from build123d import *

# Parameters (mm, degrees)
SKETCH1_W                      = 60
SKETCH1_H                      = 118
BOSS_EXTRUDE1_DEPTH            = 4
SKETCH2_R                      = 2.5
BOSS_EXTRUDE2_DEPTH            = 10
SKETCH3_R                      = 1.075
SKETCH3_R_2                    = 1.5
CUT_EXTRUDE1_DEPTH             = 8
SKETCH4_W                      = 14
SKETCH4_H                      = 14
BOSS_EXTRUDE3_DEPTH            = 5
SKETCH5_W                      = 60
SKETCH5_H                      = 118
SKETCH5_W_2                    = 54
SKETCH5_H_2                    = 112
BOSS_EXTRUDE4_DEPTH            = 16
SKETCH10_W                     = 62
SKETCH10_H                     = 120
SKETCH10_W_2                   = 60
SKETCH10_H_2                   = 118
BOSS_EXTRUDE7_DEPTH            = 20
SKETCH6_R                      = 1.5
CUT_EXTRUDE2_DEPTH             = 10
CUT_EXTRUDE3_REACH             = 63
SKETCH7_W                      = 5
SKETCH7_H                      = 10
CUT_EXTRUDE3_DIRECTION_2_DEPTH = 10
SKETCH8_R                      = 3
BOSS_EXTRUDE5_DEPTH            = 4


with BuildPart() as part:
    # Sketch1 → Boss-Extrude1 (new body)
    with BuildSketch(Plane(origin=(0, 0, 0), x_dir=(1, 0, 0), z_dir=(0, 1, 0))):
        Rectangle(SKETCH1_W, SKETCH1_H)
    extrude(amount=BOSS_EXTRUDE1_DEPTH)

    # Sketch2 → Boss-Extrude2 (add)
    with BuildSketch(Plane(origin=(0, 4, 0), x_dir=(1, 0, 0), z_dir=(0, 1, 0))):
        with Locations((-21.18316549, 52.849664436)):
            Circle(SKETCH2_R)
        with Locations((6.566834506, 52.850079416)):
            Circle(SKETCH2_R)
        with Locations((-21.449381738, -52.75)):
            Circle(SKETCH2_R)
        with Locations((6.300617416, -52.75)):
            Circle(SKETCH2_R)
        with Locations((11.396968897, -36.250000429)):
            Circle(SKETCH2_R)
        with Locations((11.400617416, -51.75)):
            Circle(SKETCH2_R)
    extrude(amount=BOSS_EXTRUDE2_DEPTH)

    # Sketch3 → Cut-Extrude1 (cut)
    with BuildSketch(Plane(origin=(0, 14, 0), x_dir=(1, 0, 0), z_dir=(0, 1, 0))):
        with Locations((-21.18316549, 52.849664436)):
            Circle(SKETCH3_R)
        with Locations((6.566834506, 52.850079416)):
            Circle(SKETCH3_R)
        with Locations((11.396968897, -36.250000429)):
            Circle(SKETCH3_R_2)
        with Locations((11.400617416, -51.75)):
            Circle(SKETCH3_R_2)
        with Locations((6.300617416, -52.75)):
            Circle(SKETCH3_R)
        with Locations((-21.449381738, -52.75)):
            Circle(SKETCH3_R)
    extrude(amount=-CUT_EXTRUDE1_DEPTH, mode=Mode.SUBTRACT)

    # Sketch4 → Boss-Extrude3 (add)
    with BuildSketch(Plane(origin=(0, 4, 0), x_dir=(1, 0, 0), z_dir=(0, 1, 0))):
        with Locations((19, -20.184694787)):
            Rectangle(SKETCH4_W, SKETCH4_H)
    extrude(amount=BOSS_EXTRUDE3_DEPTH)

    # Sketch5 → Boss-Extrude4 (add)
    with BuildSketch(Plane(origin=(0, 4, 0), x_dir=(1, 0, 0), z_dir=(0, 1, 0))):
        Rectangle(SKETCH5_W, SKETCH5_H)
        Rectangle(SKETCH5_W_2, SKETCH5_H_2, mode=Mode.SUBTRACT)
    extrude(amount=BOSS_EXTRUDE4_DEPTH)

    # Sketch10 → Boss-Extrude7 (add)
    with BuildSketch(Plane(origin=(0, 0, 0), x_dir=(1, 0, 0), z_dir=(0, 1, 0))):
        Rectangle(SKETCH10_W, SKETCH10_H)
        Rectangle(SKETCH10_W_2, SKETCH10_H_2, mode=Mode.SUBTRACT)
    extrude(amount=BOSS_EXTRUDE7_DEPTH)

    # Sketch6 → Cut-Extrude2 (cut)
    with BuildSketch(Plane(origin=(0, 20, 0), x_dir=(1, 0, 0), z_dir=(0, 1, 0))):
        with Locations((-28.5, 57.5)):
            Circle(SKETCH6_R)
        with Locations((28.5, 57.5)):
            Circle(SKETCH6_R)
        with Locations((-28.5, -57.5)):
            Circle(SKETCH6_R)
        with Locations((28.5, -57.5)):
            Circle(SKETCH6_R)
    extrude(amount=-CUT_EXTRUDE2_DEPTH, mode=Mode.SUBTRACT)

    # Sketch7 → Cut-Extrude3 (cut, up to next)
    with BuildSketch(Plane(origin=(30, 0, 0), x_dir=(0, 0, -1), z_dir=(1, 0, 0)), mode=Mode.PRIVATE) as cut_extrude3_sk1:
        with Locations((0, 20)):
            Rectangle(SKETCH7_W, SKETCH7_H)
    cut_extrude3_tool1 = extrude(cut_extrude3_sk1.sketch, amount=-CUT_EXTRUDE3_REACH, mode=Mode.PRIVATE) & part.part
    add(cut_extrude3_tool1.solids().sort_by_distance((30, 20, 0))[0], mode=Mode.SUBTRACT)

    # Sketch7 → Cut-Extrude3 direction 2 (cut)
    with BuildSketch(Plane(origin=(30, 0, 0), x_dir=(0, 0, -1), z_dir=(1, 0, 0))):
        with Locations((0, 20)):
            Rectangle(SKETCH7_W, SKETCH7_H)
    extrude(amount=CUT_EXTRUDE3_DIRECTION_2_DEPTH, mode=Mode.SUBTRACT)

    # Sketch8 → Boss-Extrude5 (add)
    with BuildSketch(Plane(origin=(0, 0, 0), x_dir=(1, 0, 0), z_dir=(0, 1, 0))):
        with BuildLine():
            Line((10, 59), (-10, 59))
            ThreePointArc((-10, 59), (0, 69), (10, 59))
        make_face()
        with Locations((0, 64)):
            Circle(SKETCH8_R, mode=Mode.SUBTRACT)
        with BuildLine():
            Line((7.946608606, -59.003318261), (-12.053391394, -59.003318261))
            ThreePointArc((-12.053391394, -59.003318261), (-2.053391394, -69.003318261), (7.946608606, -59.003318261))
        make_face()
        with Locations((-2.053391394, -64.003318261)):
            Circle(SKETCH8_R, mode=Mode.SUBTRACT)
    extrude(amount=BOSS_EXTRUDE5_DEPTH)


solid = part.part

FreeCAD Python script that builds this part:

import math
import FreeCAD as App
import Part
import Sketcher
from FreeCAD import Vector


def add_polygon(sketch, points):
    """Adds a closed chain of lines whose ends are joined by coincident constraints."""
    first, n = sketch.GeometryCount, len(points)
    for a, b in zip(points, points[1:] + points[:1]):
        sketch.addGeometry(Part.LineSegment(App.Vector(*a, 0), App.Vector(*b, 0)), False)
    for i in range(n):
        sketch.addConstraint(Sketcher.Constraint("Coincident", first + i, 2, first + (i + 1) % n, 1))

doc = App.newDocument("Part")
body = doc.addObject("PartDesign::Body", "Body")

# Sketch on XZ plane
sketch1 = body.newObject("Sketcher::SketchObject", "Sketch")
sketch1.AttachmentSupport = (doc.getObject("XZ_Plane"), [""])
sketch1.MapMode = "FlatFace"
add_polygon(sketch1, [(-30, -59), (-30, 59), (30, 59), (30, -59)])  # lines 0-3
sketch1.addConstraint(Sketcher.Constraint("Vertical", 0))
sketch1.addConstraint(Sketcher.Constraint("Horizontal", 1))
sketch1.addConstraint(Sketcher.Constraint("Vertical", 2))
sketch1.addConstraint(Sketcher.Constraint("Horizontal", 3))
sketch1.addConstraint(Sketcher.Constraint("Symmetric", 0, 2, 2, 2, -1, 1))
sketch1.addConstraint(Sketcher.Constraint("DistanceX", 1, 1, 1, 2, 60.0))
sketch1.addConstraint(Sketcher.Constraint("DistanceY", 0, 1, 0, 2, 118.0))
pad1 = body.newObject("PartDesign::Pad", "Pad")
pad1.Profile = sketch1
pad1.Length = 4
pad1.Reversed = True

# Sketch on XZ plane
sketch2 = body.newObject("Sketcher::SketchObject", "Sketch001")
sketch2.AttachmentSupport = (doc.getObject("XZ_Plane"), [""])
sketch2.MapMode = "FlatFace"
sketch2.AttachmentOffset = App.Placement(Vector(0, 0, -4), App.Rotation())
sketch2.addGeometry(Part.Circle(Vector(-21.183165, -52.849664, 0), Vector(0, 0, 1), 2.5), False)
sketch2.addGeometry(Part.Circle(Vector(6.566835, -52.850079, 0), Vector(0, 0, 1), 2.5), False)
sketch2.addGeometry(Part.Circle(Vector(-21.449382, 52.75, 0), Vector(0, 0, 1), 2.5), False)
sketch2.addGeometry(Part.Circle(Vector(6.300617, 52.75, 0), Vector(0, 0, 1), 2.5), False)
sketch2.addGeometry(Part.Circle(Vector(11.396969, 36.25, 0), Vector(0, 0, 1), 2.5), False)
sketch2.addGeometry(Part.Circle(Vector(11.400617, 51.75, 0), Vector(0, 0, 1), 2.5), False)
sketch2.addConstraint(Sketcher.Constraint("Equal", 0, 1))
sketch2.addConstraint(Sketcher.Constraint("Equal", 1, 2))
sketch2.addConstraint(Sketcher.Constraint("Equal", 2, 3))
sketch2.addConstraint(Sketcher.Constraint("Equal", 3, 4))
sketch2.addConstraint(Sketcher.Constraint("Equal", 4, 5))
sketch2.addConstraint(Sketcher.Constraint("Horizontal", 2, 3, 3, 3))
sketch2.addConstraint(Sketcher.Constraint("Diameter", 0, 5.0))
sketch2.addConstraint(Sketcher.Constraint("DistanceY", 5, 3, 3, 3, 1.0))
sketch2.addConstraint(Sketcher.Constraint("DistanceY", 4, 3, 3, 3, 16.5))
sketch2.addConstraint(Sketcher.Constraint("DistanceX", 3, 3, 5, 3, 5.1))
sketch2.addConstraint(Sketcher.Constraint("DistanceY", -1, 1, 2, 3, 52.75))
sketch2.addConstraint(Sketcher.Constraint("DistanceX", 0, 3, 1, 3, 27.75))
sketch2.addConstraint(Sketcher.Constraint("DistanceX", 2, 3, 3, 3, 27.749999))
sketch2.addConstraint(Sketcher.Constraint("DistanceY", 1, 3, -1, 1, 52.850079))
sketch2.addConstraint(Sketcher.Constraint("DistanceX", 2, 3, -1, 1, 21.449382))
sketch2.addConstraint(Sketcher.Constraint("DistanceX", -1, 1, 4, 3, 11.396969))
sketch2.addConstraint(Sketcher.Constraint("DistanceX", 0, 3, -1, 1, 21.183165))
sketch2.addConstraint(Sketcher.Constraint("DistanceY", 0, 3, -1, 1, 52.849664))
pad2 = body.newObject("PartDesign::Pad", "Pad001")
pad2.Profile = sketch2
pad2.Length = 10
pad2.Reversed = True

# Sketch on XZ plane
sketch3 = body.newObject("Sketcher::SketchObject", "Sketch002")
sketch3.AttachmentSupport = (doc.getObject("XZ_Plane"), [""])
sketch3.MapMode = "FlatFace"
sketch3.AttachmentOffset = App.Placement(Vector(0, 0, -14), App.Rotation())
sketch3.addGeometry(Part.Circle(Vector(-21.183165, -52.849664, 0), Vector(0, 0, 1), 1.075), False)
sketch3.addGeometry(Part.Circle(Vector(6.566835, -52.850079, 0), Vector(0, 0, 1), 1.075), False)
sketch3.addGeometry(Part.Circle(Vector(11.396969, 36.25, 0), Vector(0, 0, 1), 1.5), False)
sketch3.addGeometry(Part.Circle(Vector(11.400617, 51.75, 0), Vector(0, 0, 1), 1.5), False)
sketch3.addGeometry(Part.Circle(Vector(6.300617, 52.75, 0), Vector(0, 0, 1), 1.075), False)
sketch3.addGeometry(Part.Circle(Vector(-21.449382, 52.75, 0), Vector(0, 0, 1), 1.075), False)
sketch3.addConstraint(Sketcher.Constraint("Equal", 0, 1))
sketch3.addConstraint(Sketcher.Constraint("Equal", 2, 3))
sketch3.addConstraint(Sketcher.Constraint("Equal", 1, 4))
sketch3.addConstraint(Sketcher.Constraint("Equal", 4, 5))
sketch3.addConstraint(Sketcher.Constraint("Horizontal", 4, 3, 5, 3))
sketch3.addConstraint(Sketcher.Constraint("Diameter", 2, 3.0))
sketch3.addConstraint(Sketcher.Constraint("Diameter", 0, 2.15))
sketch3.addConstraint(Sketcher.Constraint("DistanceY", 3, 3, 4, 3, 1.0))
sketch3.addConstraint(Sketcher.Constraint("DistanceY", 2, 3, 3, 3, 15.5))
sketch3.addConstraint(Sketcher.Constraint("DistanceX", 4, 3, 3, 3, 5.1))
sketch3.addConstraint(Sketcher.Constraint("DistanceY", -1, 1, 2, 3, 36.25))
sketch3.addConstraint(Sketcher.Constraint("DistanceX", 0, 3, 1, 3, 27.75))
sketch3.addConstraint(Sketcher.Constraint("DistanceX", 5, 3, 4, 3, 27.749999))
sketch3.addConstraint(Sketcher.Constraint("DistanceY", 1, 3, -1, 1, 52.850079))
sketch3.addConstraint(Sketcher.Constraint("DistanceX", -1, 1, 2, 3, 11.396969))
sketch3.addConstraint(Sketcher.Constraint("DistanceX", 5, 3, -1, 1, 21.449382))
sketch3.addConstraint(Sketcher.Constraint("DistanceX", 0, 3, -1, 1, 21.183165))
sketch3.addConstraint(Sketcher.Constraint("DistanceY", 0, 3, -1, 1, 52.849664))
pocket1 = body.newObject("PartDesign::Pocket", "Pocket")
pocket1.Profile = sketch3
pocket1.Length = 8
pocket1.Reversed = True

# Sketch on XZ plane
sketch4 = body.newObject("Sketcher::SketchObject", "Sketch003")
sketch4.AttachmentSupport = (doc.getObject("XZ_Plane"), [""])
sketch4.MapMode = "FlatFace"
sketch4.AttachmentOffset = App.Placement(Vector(0, 0, -4), App.Rotation())
add_polygon(sketch4, [(12, 13.184695), (12, 27.184695), (26, 27.184695), (26, 13.184695)])  # lines 0-3
sketch4.addConstraint(Sketcher.Constraint("Vertical", 0))
sketch4.addConstraint(Sketcher.Constraint("Horizontal", 1))
sketch4.addConstraint(Sketcher.Constraint("Vertical", 2))
sketch4.addConstraint(Sketcher.Constraint("Horizontal", 3))
sketch4.addConstraint(Sketcher.Constraint("Equal", 3, 0))
sketch4.addConstraint(Sketcher.Constraint("DistanceX", 1, 1, 1, 2, 14.0))
sketch4.addConstraint(Sketcher.Constraint("DistanceX", -1, 1, 0, 2, 12.0))
sketch4.addConstraint(Sketcher.Constraint("DistanceY", -1, 1, 0, 2, 27.184695))
pad3 = body.newObject("PartDesign::Pad", "Pad002")
pad3.Profile = sketch4
pad3.Length = 5
pad3.Reversed = True

# Sketch on XZ plane
sketch5 = body.newObject("Sketcher::SketchObject", "Sketch004")
sketch5.AttachmentSupport = (doc.getObject("XZ_Plane"), [""])
sketch5.MapMode = "FlatFace"
sketch5.AttachmentOffset = App.Placement(Vector(0, 0, -4), App.Rotation())
add_polygon(sketch5, [(-30, -59), (-30, 59), (30, 59), (30, -59)])  # lines 0-3
add_polygon(sketch5, [(27, 56), (-27, 56), (-27, -56), (27, -56)])  # lines 4-7
sketch5.addConstraint(Sketcher.Constraint("Vertical", 0))
sketch5.addConstraint(Sketcher.Constraint("Horizontal", 1))
sketch5.addConstraint(Sketcher.Constraint("Vertical", 2))
sketch5.addConstraint(Sketcher.Constraint("Horizontal", 3))
sketch5.addConstraint(Sketcher.Constraint("Horizontal", 4))
sketch5.addConstraint(Sketcher.Constraint("Vertical", 5))
sketch5.addConstraint(Sketcher.Constraint("Horizontal", 6))
sketch5.addConstraint(Sketcher.Constraint("Vertical", 7))
sketch5.addConstraint(Sketcher.Constraint("Symmetric", 0, 2, 2, 2, -1, 1))
sketch5.addConstraint(Sketcher.Constraint("Symmetric", 4, 2, 6, 2, -1, 1))
sketch5.addConstraint(Sketcher.Constraint("DistanceX", 1, 1, 1, 2, 60.0))
sketch5.addConstraint(Sketcher.Constraint("DistanceX", 4, 2, 4, 1, 54.0))
sketch5.addConstraint(Sketcher.Constraint("DistanceY", 0, 1, 0, 2, 118.0))
sketch5.addConstraint(Sketcher.Constraint("DistanceY", 5, 2, 5, 1, 112.0))
pad4 = body.newObject("PartDesign::Pad", "Pad003")
pad4.Profile = sketch5
pad4.Length = 16
pad4.Reversed = True

# Sketch on XZ plane
sketch6 = body.newObject("Sketcher::SketchObject", "Sketch005")
sketch6.AttachmentSupport = (doc.getObject("XZ_Plane"), [""])
sketch6.MapMode = "FlatFace"
add_polygon(sketch6, [(-31, -60), (-31, 60), (31, 60), (31, -60)])  # lines 0-3
add_polygon(sketch6, [(30, 59), (-30, 59), (-30, -59), (30, -59)])  # lines 4-7
sketch6.addConstraint(Sketcher.Constraint("Vertical", 0))
sketch6.addConstraint(Sketcher.Constraint("Horizontal", 1))
sketch6.addConstraint(Sketcher.Constraint("Vertical", 2))
sketch6.addConstraint(Sketcher.Constraint("Horizontal", 3))
sketch6.addConstraint(Sketcher.Constraint("Horizontal", 4))
sketch6.addConstraint(Sketcher.Constraint("Vertical", 5))
sketch6.addConstraint(Sketcher.Constraint("Horizontal", 6))
sketch6.addConstraint(Sketcher.Constraint("Vertical", 7))
sketch6.addConstraint(Sketcher.Constraint("Symmetric", 0, 2, 2, 2, -1, 1))
sketch6.addConstraint(Sketcher.Constraint("Symmetric", 4, 2, 6, 2, -1, 1))
sketch6.addConstraint(Sketcher.Constraint("DistanceX", 1, 1, 1, 2, 62.0))
sketch6.addConstraint(Sketcher.Constraint("DistanceX", 4, 2, 4, 1, 60.0))
sketch6.addConstraint(Sketcher.Constraint("DistanceY", 0, 1, 0, 2, 120.0))
sketch6.addConstraint(Sketcher.Constraint("DistanceY", 5, 2, 5, 1, 118.0))
pad5 = body.newObject("PartDesign::Pad", "Pad004")
pad5.Profile = sketch6
pad5.Length = 20
pad5.Reversed = True

# Sketch on XZ plane
sketch7 = body.newObject("Sketcher::SketchObject", "Sketch006")
sketch7.AttachmentSupport = (doc.getObject("XZ_Plane"), [""])
sketch7.MapMode = "FlatFace"
sketch7.AttachmentOffset = App.Placement(Vector(0, 0, -20), App.Rotation())
sketch7.addGeometry(Part.Circle(Vector(-28.5, -57.5, 0), Vector(0, 0, 1), 1.5), False)
sketch7.addGeometry(Part.Circle(Vector(28.5, -57.5, 0), Vector(0, 0, 1), 1.5), False)
sketch7.addGeometry(Part.Circle(Vector(-28.5, 57.5, 0), Vector(0, 0, 1), 1.5), False)
sketch7.addGeometry(Part.Circle(Vector(28.5, 57.5, 0), Vector(0, 0, 1), 1.5), False)
sketch7.addConstraint(Sketcher.Constraint("Equal", 0, 1))
sketch7.addConstraint(Sketcher.Constraint("Equal", 1, 2))
sketch7.addConstraint(Sketcher.Constraint("Equal", 2, 3))
sketch7.addConstraint(Sketcher.Constraint("Symmetric", 1, 3, 2, 3, -1, 1))
sketch7.addConstraint(Sketcher.Constraint("Symmetric", 0, 3, 3, 3, -1, 1))
sketch7.addConstraint(Sketcher.Constraint("Symmetric", 0, 3, 1, 3, -2))
sketch7.addConstraint(Sketcher.Constraint("Diameter", 0, 3.0))
sketch7.addConstraint(Sketcher.Constraint("DistanceX", 0, 3, 1, 3, 57.0))
sketch7.addConstraint(Sketcher.Constraint("DistanceY", 0, 3, 2, 3, 115.0))
pocket2 = body.newObject("PartDesign::Pocket", "Pocket001")
pocket2.Profile = sketch7
pocket2.Length = 10
pocket2.Reversed = True

# Sketch on YZ plane
sketch8 = body.newObject("Sketcher::SketchObject", "Sketch007")
sketch8.AttachmentSupport = (doc.getObject("YZ_Plane"), [""])
sketch8.MapMode = "FlatFace"
sketch8.AttachmentOffset = App.Placement(Vector(0, 0, 30), App.Rotation())
add_polygon(sketch8, [(25, 2.5), (15, 2.5), (15, -2.5), (25, -2.5)])  # lines 0-3
sketch8.addConstraint(Sketcher.Constraint("Horizontal", 0))
sketch8.addConstraint(Sketcher.Constraint("Vertical", 1))
sketch8.addConstraint(Sketcher.Constraint("Horizontal", 2))
sketch8.addConstraint(Sketcher.Constraint("Vertical", 3))
sketch8.addConstraint(Sketcher.Constraint("DistanceX", 0, 2, 0, 1, 10.0))
sketch8.addConstraint(Sketcher.Constraint("DistanceY", 1, 2, 1, 1, 5.0))
sketch8.addConstraint(Sketcher.Constraint("DistanceX", -1, 1, 0, 2, 15.0))
sketch8.addConstraint(Sketcher.Constraint("DistanceY", -1, 1, 0, 2, 2.5))
pocket3 = body.newObject("PartDesign::Pocket", "Pocket002")
pocket3.Profile = sketch8
pocket3.Type = "UpToFirst"

# Sketch on YZ plane
sketch9 = body.newObject("Sketcher::SketchObject", "Sketch008")
sketch9.AttachmentSupport = (doc.getObject("YZ_Plane"), [""])
sketch9.MapMode = "FlatFace"
sketch9.AttachmentOffset = App.Placement(Vector(0, 0, 30), App.Rotation())
add_polygon(sketch9, [(25, 2.5), (15, 2.5), (15, -2.5), (25, -2.5)])  # lines 0-3
sketch9.addConstraint(Sketcher.Constraint("Horizontal", 0))
sketch9.addConstraint(Sketcher.Constraint("Vertical", 1))
sketch9.addConstraint(Sketcher.Constraint("Horizontal", 2))
sketch9.addConstraint(Sketcher.Constraint("Vertical", 3))
sketch9.addConstraint(Sketcher.Constraint("DistanceX", 0, 2, 0, 1, 10.0))
sketch9.addConstraint(Sketcher.Constraint("DistanceY", 1, 2, 1, 1, 5.0))
sketch9.addConstraint(Sketcher.Constraint("DistanceX", -1, 1, 0, 2, 15.0))
sketch9.addConstraint(Sketcher.Constraint("DistanceY", -1, 1, 0, 2, 2.5))
pocket4 = body.newObject("PartDesign::Pocket", "Pocket003")
pocket4.Profile = sketch9
pocket4.Length = 10
pocket4.Reversed = True

# Sketch on XZ plane
sketch10 = body.newObject("Sketcher::SketchObject", "Sketch009")
sketch10.AttachmentSupport = (doc.getObject("XZ_Plane"), [""])
sketch10.MapMode = "FlatFace"
sketch10.addGeometry(Part.LineSegment(Vector(-10, -59, 0), Vector(10, -59, 0)), False)
sketch10.addGeometry(Part.ArcOfCircle(Part.Circle(Vector(0, -59, 0), Vector(0, 0, 1), 10), math.radians(180), math.radians(360)), False)
sketch10.addGeometry(Part.Circle(Vector(0, -64, 0), Vector(0, 0, 1), 3), False)
sketch10.addGeometry(Part.LineSegment(Vector(7.946609, 59.003318, 0), Vector(-12.053391, 59.003318, 0)), False)
sketch10.addGeometry(Part.ArcOfCircle(Part.Circle(Vector(-2.053391, 59.003318, 0), Vector(0, 0, 1), 10), math.radians(0), math.radians(180)), False)
sketch10.addGeometry(Part.Circle(Vector(-2.053391, 64.003318, 0), Vector(0, 0, 1), 3), False)
sketch10.addConstraint(Sketcher.Constraint("Coincident", 0, 1, 1, 1))
sketch10.addConstraint(Sketcher.Constraint("Coincident", 1, 2, 0, 2))
sketch10.addConstraint(Sketcher.Constraint("Coincident", 3, 1, 4, 1))
sketch10.addConstraint(Sketcher.Constraint("Coincident", 4, 2, 3, 2))
sketch10.addConstraint(Sketcher.Constraint("Horizontal", 0))
sketch10.addConstraint(Sketcher.Constraint("Horizontal", 3))
sketch10.addConstraint(Sketcher.Constraint("Equal", 1, 4))
sketch10.addConstraint(Sketcher.Constraint("Equal", 2, 5))
sketch10.addConstraint(Sketcher.Constraint("PointOnObject", 1, 3, -2))
sketch10.addConstraint(Sketcher.Constraint("PointOnObject", 2, 3, -2))
sketch10.addConstraint(Sketcher.Constraint("Horizontal", 1, 3, 0, 1))
sketch10.addConstraint(Sketcher.Constraint("Horizontal", 4, 3, 3, 1))
sketch10.addConstraint(Sketcher.Constraint("Vertical", 4, 3, 5, 3))
sketch10.addConstraint(Sketcher.Constraint("Diameter", 2, 6.0))
sketch10.addConstraint(Sketcher.Constraint("Radius", 1, 10.0))
sketch10.addConstraint(Sketcher.Constraint("DistanceY", 1, 3, -1, 1, 59.0))
sketch10.addConstraint(Sketcher.Constraint("DistanceY", 2, 3, -1, 1, 64.0))
sketch10.addConstraint(Sketcher.Constraint("DistanceY", 4, 3, 5, 3, 5.0))
sketch10.addConstraint(Sketcher.Constraint("DistanceX", 4, 3, -1, 1, 2.053391))
sketch10.addConstraint(Sketcher.Constraint("DistanceY", -1, 1, 4, 3, 59.003318))
pad6 = body.newObject("PartDesign::Pad", "Pad005")
pad6.Profile = sketch10
pad6.Length = 4
pad6.Reversed = True

doc.recompute()
